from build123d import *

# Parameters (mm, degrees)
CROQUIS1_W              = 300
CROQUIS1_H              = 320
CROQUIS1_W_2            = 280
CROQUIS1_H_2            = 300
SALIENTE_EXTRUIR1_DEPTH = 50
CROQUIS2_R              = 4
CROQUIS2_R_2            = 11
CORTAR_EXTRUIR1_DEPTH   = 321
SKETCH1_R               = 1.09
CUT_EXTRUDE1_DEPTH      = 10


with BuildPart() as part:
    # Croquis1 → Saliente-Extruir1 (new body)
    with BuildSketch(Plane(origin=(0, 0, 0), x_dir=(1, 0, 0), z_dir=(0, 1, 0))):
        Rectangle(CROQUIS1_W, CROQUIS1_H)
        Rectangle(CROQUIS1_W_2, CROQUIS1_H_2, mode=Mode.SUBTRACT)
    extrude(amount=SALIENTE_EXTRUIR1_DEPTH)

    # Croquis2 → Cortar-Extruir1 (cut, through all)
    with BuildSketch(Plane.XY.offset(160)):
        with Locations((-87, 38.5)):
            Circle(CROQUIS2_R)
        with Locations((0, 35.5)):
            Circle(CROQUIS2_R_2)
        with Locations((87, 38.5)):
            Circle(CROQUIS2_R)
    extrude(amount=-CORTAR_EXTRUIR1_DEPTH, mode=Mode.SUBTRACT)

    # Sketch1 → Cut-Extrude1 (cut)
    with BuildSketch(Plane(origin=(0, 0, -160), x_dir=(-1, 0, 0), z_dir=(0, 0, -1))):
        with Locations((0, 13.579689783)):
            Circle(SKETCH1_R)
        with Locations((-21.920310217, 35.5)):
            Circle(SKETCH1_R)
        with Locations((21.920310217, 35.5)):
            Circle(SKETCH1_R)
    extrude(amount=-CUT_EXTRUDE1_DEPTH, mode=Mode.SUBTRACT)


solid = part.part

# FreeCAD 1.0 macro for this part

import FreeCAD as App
import Part
import Sketcher
from FreeCAD import Vector

doc = App.newDocument("Part")
body = doc.addObject("PartDesign::Body", "Body")

# Sketch on XZ plane
sketch1 = doc.addObject("Sketcher::SketchObject", "Sketch")
body.addObject(sketch1)
sketch1.AttachmentSupport = (doc.XZ_Plane, [""])
sketch1.MapMode = "FlatFace"
sketch1.addGeometry(Part.LineSegment(Vector(-150, -160, 0), Vector(-150, 160, 0)), False)
sketch1.addGeometry(Part.LineSegment(Vector(-150, 160, 0), Vector(150, 160, 0)), False)
sketch1.addGeometry(Part.LineSegment(Vector(150, 160, 0), Vector(150, -160, 0)), False)
sketch1.addGeometry(Part.LineSegment(Vector(150, -160, 0), Vector(-150, -160, 0)), False)
sketch1.addGeometry(Part.LineSegment(Vector(140, 150, 0), Vector(-140, 150, 0)), False)
sketch1.addGeometry(Part.LineSegment(Vector(-140, 150, 0), Vector(-140, -150, 0)), False)
sketch1.addGeometry(Part.LineSegment(Vector(-140, -150, 0), Vector(140, -150, 0)), False)
sketch1.addGeometry(Part.LineSegment(Vector(140, -150, 0), Vector(140, 150, 0)), False)
sketch1.addConstraint(Sketcher.Constraint("Coincident", 0, 2, 1, 1))
sketch1.addConstraint(Sketcher.Constraint("Coincident", 1, 2, 2, 1))
sketch1.addConstraint(Sketcher.Constraint("Coincident", 2, 2, 3, 1))
sketch1.addConstraint(Sketcher.Constraint("Coincident", 3, 2, 0, 1))
sketch1.addConstraint(Sketcher.Constraint("Coincident", 4, 2, 5, 1))
sketch1.addConstraint(Sketcher.Constraint("Coincident", 5, 2, 6, 1))
sketch1.addConstraint(Sketcher.Constraint("Coincident", 6, 2, 7, 1))
sketch1.addConstraint(Sketcher.Constraint("Coincident", 7, 2, 4, 1))
sketch1.addConstraint(Sketcher.Constraint("Vertical", 0))
sketch1.addConstraint(Sketcher.Constraint("Horizontal", 1))
sketch1.addConstraint(Sketcher.Constraint("Vertical", 2))
sketch1.addConstraint(Sketcher.Constraint("Horizontal", 3))
sketch1.addConstraint(Sketcher.Constraint("Horizontal", 4))
sketch1.addConstraint(Sketcher.Constraint("Vertical", 5))
sketch1.addConstraint(Sketcher.Constraint("Horizontal", 6))
sketch1.addConstraint(Sketcher.Constraint("Vertical", 7))
sketch1.addConstraint(Sketcher.Constraint("Symmetric", 0, 2, 2, 2, -1, 1))
sketch1.addConstraint(Sketcher.Constraint("Symmetric", 4, 2, 6, 2, -1, 1))
sketch1.addConstraint(Sketcher.Constraint("Equal", 3, 5))
sketch1.addConstraint(Sketcher.Constraint("DistanceX", 1, 1, 1, 2, 300.0))
sketch1.addConstraint(Sketcher.Constraint("DistanceX", 4, 2, 4, 1, 280.0))
sketch1.addConstraint(Sketcher.Constraint("DistanceY", 0, 1, 0, 2, 320.0))
pad1 = doc.addObject("PartDesign::Pad", "Pad")
body.addObject(pad1)
pad1.Profile = sketch1
pad1.Length = 50
pad1.Reversed = True

# Sketch on XY plane
sketch2 = doc.addObject("Sketcher::SketchObject", "Sketch001")
body.addObject(sketch2)
sketch2.AttachmentSupport = (doc.XY_Plane, [""])
sketch2.MapMode = "FlatFace"
sketch2.AttachmentOffset = App.Placement(Vector(0, 0, 160), App.Rotation())
sketch2.addGeometry(Part.Circle(Vector(-87, 38.5, 0), Vector(0, 0, 1), 4), False)
sketch2.addGeometry(Part.Circle(Vector(0, 35.5, 0), Vector(0, 0, 1), 11), False)
sketch2.addGeometry(Part.Circle(Vector(87, 38.5, 0), Vector(0, 0, 1), 4), False)
sketch2.addConstraint(Sketcher.Constraint("Equal", 0, 2))
sketch2.addConstraint(Sketcher.Constraint("Symmetric", 0, 3, 2, 3, -2))
sketch2.addConstraint(Sketcher.Constraint("PointOnObject", 1, 3, -2))
sketch2.addConstraint(Sketcher.Constraint("Diameter", 0, 8.0))
sketch2.addConstraint(Sketcher.Constraint("Diameter", 1, 22.0))
sketch2.addConstraint(Sketcher.Constraint("DistanceX", 0, 3, -1, 1, 87.0))
sketch2.addConstraint(Sketcher.Constraint("DistanceY", 1, 3, 0, 3, 3.0))
sketch2.addConstraint(Sketcher.Constraint("DistanceY", -1, 1, 0, 3, 38.5))
pocket1 = doc.addObject("PartDesign::Pocket", "Pocket")
body.addObject(pocket1)
pocket1.Profile = sketch2
pocket1.Type = "ThroughAll"

# Sketch on XY plane
sketch3 = doc.addObject("Sketcher::SketchObject", "Sketch002")
body.addObject(sketch3)
sketch3.AttachmentSupport = (doc.XY_Plane, [""])
sketch3.MapMode = "FlatFace"
sketch3.AttachmentOffset = App.Placement(Vector(0, 0, -160), App.Rotation())
sketch3.addGeometry(Part.Circle(Vector(0, 13.6, 0), Vector(0, 0, 1), 1.1), False)
sketch3.addGeometry(Part.Circle(Vector(21.9, 35.5, 0), Vector(0, 0, 1), 1.1), False)
sketch3.addGeometry(Part.Circle(Vector(-21.9, 35.5, 0), Vector(0, 0, 1), 1.1), False)
sketch3.addConstraint(Sketcher.Constraint("Equal", 0, 1))
sketch3.addConstraint(Sketcher.Constraint("Equal", 1, 2))
sketch3.addConstraint(Sketcher.Constraint("Symmetric", 1, 3, 2, 3, -2))
sketch3.addConstraint(Sketcher.Constraint("PointOnObject", 0, 3, -2))
sketch3.addConstraint(Sketcher.Constraint("Diameter", 0, 2.18))
sketch3.addConstraint(Sketcher.Constraint("DistanceY", -1, 1, 1, 3, 35.5))
sketch3.addConstraint(Sketcher.Constraint("DistanceY", -1, 1, 0, 3, 13.57969))
sketch3.addConstraint(Sketcher.Constraint("DistanceX", -1, 1, 1, 3, 21.92031))
pocket2 = doc.addObject("PartDesign::Pocket", "Pocket001")
body.addObject(pocket2)
pocket2.Profile = sketch3
pocket2.Length = 10
pocket2.Reversed = True

doc.recompute()
